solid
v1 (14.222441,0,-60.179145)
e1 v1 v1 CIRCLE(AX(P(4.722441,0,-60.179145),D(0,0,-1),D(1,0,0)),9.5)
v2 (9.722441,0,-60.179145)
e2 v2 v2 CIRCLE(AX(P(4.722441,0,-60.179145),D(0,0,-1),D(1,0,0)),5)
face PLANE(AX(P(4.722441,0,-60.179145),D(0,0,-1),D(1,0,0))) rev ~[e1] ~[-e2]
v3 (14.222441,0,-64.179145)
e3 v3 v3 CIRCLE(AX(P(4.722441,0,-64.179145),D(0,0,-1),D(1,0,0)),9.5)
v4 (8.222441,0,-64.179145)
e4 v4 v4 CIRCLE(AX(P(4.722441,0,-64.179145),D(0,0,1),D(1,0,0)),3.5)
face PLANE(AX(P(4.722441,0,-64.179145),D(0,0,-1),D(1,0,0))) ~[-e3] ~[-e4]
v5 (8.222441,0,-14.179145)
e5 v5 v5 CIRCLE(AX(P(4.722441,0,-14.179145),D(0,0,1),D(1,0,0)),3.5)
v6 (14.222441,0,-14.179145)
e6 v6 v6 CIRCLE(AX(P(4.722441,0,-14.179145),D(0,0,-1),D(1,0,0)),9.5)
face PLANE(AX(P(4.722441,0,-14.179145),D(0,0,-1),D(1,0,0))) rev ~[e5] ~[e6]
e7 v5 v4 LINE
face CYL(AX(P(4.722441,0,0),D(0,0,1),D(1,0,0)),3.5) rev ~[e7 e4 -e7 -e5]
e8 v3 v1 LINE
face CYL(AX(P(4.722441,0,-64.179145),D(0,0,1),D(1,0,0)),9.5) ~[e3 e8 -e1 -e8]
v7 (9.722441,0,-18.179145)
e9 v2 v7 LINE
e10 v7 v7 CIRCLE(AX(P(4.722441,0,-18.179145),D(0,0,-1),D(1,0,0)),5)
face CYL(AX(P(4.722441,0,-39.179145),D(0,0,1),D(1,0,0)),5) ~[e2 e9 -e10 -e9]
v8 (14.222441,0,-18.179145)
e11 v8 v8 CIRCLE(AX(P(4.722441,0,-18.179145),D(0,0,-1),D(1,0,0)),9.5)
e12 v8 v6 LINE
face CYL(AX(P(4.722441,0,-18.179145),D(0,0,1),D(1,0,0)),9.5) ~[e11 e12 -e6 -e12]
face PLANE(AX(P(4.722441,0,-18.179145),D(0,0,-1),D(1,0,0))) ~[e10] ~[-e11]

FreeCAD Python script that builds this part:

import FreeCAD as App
import Part
import Sketcher
from FreeCAD import Vector
Q = App.Units.Quantity

doc = App.newDocument("Part")
params = doc.addObject("Spreadsheet::Sheet", "Params")
for row, (alias, value) in enumerate([
    ("sketch1_height", "50 mm"),
    ("sketch1_height2", "4 mm"),
    ("sketch1_width", "9.5 mm"),
    ("sketch1_width2", "4.5 mm"),
    ("revolution_angle", "360 deg"),
    ("sketch2_diameter", "7 mm"),
    ("pocket1_length", "71 mm"),
], start=1):
    params.set(f"A{row}", alias)
    params.set(f"B{row}", "=" + value)
    params.setAlias(f"B{row}", alias)

body = doc.addObject("PartDesign::Body", "Body")

# Sketch on XZ plane
sketch1 = body.newObject("Sketcher::SketchObject", "Sketch")
sketch1.AttachmentSupport = (doc.getObject("XZ_Plane"), [""])
sketch1.MapMode = "FlatFace"
sketch1.addGeometry([
    Part.LineSegment(Vector(14.2, -14.2, 0), Vector(4.7, -14.2, 0)),  # 0
    Part.LineSegment(Vector(4.7, -14.2, 0), Vector(4.7, -64.2, 0)),  # 1
    Part.LineSegment(Vector(4.7, -64.2, 0), Vector(14.2, -64.2, 0)),  # 2
    Part.LineSegment(Vector(14.2, -64.2, 0), Vector(14.2, -60.2, 0)),  # 3
    Part.LineSegment(Vector(14.2, -60.2, 0), Vector(9.7, -60.2, 0)),  # 4
    Part.LineSegment(Vector(9.7, -60.2, 0), Vector(9.7, -18.2, 0)),  # 5
    Part.LineSegment(Vector(9.7, -18.2, 0), Vector(14.2, -18.2, 0)),  # 6
    Part.LineSegment(Vector(14.2, -18.2, 0), Vector(14.2, -14.2, 0)),  # 7
], False)
sketch1.addGeometry(Part.LineSegment(Vector(4.7, -14.2, 0), Vector(4.7, -64.2, 0)), True)  # axis
sketch1.addConstraint([
    Sketcher.Constraint("Coincident", 0, 2, 1, 1),
    Sketcher.Constraint("Coincident", 1, 2, 2, 1),
    Sketcher.Constraint("Coincident", 2, 2, 3, 1),
    Sketcher.Constraint("Coincident", 3, 2, 4, 1),
    Sketcher.Constraint("Coincident", 4, 2, 5, 1),
    Sketcher.Constraint("Coincident", 5, 2, 6, 1),
    Sketcher.Constraint("Coincident", 6, 2, 7, 1),
    Sketcher.Constraint("Coincident", 7, 2, 0, 1),
    Sketcher.Constraint("Horizontal", 0),
    Sketcher.Constraint("Vertical", 1),
    Sketcher.Constraint("Horizontal", 2),
    Sketcher.Constraint("Vertical", 3),
    Sketcher.Constraint("Horizontal", 4),
    Sketcher.Constraint("Vertical", 5),
    Sketcher.Constraint("Horizontal", 6),
    Sketcher.Constraint("Vertical", 7),
    Sketcher.Constraint("Vertical", 8),
    Sketcher.Constraint("Coincident", 8, 1, 0, 2),
    Sketcher.Constraint("Horizontal", 2, 2, 8, 2),
    Sketcher.Constraint("Vertical", 3, 2, 6, 2),
    Sketcher.Constraint("Equal", 3, 7),
    Sketcher.Constraint("DistanceY", 1, 2, 1, 1, Q("50 mm")),
    Sketcher.Constraint("DistanceY", 3, 1, 3, 2, Q("4 mm")),
    Sketcher.Constraint("DistanceX", 0, 2, 0, 1, Q("9.5 mm")),
    Sketcher.Constraint("DistanceX", 4, 2, 4, 1, Q("4.5 mm")),
    Sketcher.Constraint("DistanceX", -1, 1, 0, 2, Q("4.722441 mm")),
    Sketcher.Constraint("DistanceY", 0, 2, -1, 1, Q("14.179145 mm")),
])
sketch1.setExpression("Constraints[21]", "Params.sketch1_height")
sketch1.setExpression("Constraints[22]", "Params.sketch1_height2")
sketch1.setExpression("Constraints[23]", "Params.sketch1_width")
sketch1.setExpression("Constraints[24]", "Params.sketch1_width2")
revolution = body.newObject("PartDesign::Revolution", "Revolution")
revolution.Profile = sketch1
revolution.ReferenceAxis = (sketch1, ["Axis0"])
revolution.setExpression("Angle", "Params.revolution_angle")

# Sketch on XY plane
sketch2 = body.newObject("Sketcher::SketchObject", "Sketch001")
sketch2.AttachmentSupport = (doc.getObject("XY_Plane"), [""])
sketch2.MapMode = "FlatFace"
sketch2.addGeometry(Part.Circle(Vector(4.7, 0, 0), Vector(0, 0, 1), 3.5), False)
sketch2.addConstraint([
    Sketcher.Constraint("PointOnObject", 0, 3, -1),
    Sketcher.Constraint("Diameter", 0, Q("7 mm")),
    Sketcher.Constraint("DistanceX", -1, 1, 0, 3, Q("4.722441 mm")),
])
sketch2.setExpression("Constraints[1]", "Params.sketch2_diameter")
pocket1 = body.newObject("PartDesign::Pocket", "Pocket")
pocket1.Profile = sketch2
pocket1.setExpression("Length", "Params.pocket1_length")

doc.recompute()
